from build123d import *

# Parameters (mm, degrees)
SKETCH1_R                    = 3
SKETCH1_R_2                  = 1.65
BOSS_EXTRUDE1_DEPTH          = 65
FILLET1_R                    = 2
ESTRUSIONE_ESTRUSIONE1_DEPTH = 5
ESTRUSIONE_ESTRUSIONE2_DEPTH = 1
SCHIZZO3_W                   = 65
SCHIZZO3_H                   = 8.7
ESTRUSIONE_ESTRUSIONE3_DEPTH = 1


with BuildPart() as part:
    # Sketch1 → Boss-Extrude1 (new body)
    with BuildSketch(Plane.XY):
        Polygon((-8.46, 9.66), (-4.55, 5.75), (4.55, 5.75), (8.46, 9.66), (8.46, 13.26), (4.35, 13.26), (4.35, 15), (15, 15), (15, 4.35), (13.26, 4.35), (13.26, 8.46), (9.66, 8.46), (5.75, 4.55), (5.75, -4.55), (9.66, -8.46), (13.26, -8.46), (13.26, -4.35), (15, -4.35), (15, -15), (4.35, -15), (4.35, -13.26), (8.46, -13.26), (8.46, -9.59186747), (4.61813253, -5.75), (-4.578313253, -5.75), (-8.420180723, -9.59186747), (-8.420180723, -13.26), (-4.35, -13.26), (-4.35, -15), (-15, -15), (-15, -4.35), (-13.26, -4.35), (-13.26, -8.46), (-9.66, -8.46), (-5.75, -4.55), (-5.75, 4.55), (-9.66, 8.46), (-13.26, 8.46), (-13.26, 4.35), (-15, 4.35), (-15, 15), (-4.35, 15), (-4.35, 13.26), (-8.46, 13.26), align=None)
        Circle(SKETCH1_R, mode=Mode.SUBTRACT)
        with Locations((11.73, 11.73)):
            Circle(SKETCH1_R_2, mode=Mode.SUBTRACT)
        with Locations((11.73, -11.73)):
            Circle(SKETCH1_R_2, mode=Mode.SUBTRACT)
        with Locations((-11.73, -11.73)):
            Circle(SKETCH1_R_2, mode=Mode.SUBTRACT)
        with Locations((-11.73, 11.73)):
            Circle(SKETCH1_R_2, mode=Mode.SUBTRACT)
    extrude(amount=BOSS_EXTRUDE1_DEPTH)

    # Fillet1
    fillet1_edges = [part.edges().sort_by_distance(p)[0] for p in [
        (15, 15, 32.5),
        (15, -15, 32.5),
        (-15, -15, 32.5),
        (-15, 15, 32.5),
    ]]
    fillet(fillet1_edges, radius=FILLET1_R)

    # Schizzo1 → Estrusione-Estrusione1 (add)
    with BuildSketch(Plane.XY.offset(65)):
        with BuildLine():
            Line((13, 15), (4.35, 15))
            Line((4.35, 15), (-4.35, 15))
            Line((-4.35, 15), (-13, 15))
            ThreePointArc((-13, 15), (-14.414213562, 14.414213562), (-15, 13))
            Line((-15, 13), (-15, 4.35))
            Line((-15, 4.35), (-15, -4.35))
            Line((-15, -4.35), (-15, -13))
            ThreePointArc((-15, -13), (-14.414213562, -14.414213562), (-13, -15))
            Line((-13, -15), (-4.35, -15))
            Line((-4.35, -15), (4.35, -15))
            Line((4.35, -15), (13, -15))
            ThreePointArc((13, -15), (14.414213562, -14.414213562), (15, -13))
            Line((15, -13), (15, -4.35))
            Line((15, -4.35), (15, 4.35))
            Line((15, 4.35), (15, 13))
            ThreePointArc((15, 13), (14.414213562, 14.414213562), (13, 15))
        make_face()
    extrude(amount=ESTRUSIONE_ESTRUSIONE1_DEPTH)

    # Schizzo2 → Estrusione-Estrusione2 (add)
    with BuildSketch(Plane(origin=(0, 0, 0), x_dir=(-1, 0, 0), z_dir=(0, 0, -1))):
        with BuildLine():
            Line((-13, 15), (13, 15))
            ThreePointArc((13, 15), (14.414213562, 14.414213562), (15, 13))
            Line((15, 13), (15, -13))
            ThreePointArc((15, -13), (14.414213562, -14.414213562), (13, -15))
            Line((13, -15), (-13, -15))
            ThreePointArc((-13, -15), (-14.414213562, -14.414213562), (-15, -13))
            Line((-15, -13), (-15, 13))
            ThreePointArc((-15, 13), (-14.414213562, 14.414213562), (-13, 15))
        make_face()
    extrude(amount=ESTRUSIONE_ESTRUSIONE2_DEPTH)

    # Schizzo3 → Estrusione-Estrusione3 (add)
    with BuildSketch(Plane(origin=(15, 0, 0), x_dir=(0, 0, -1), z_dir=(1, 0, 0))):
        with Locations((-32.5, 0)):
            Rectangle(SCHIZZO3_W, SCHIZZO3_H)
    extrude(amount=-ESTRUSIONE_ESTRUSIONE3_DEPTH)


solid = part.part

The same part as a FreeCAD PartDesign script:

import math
import FreeCAD as App
import Part
import Sketcher

V = App.Vector


def edges_at(feature, points):
    """Names of the edges that pass closest to the given points."""
    edges = feature.Shape.Edges
    near = lambda p: min(range(len(edges)), key=lambda i: edges[i].distToShape(Part.Vertex(*p))[0])
    return sorted({f"Edge{near(p) + 1}" for p in points})

doc = App.newDocument("Part")
body = doc.addObject("PartDesign::Body", "Body")

# Sketch on XY plane
sketch1 = body.newObject("Sketcher::SketchObject", "Sketch")
sketch1.AttachmentSupport = (doc.getObject("XY_Plane"), [""])
sketch1.MapMode = "FlatFace"
sketch1.addGeometry([
    Part.LineSegment(V(-4.5, 5.8, 0), V(-8.5, 9.7, 0)),  # 0
    Part.LineSegment(V(-8.5, 9.7, 0), V(-8.5, 13.3, 0)),  # 1
    Part.LineSegment(V(-8.5, 13.3, 0), V(-4.3, 13.3, 0)),  # 2
    Part.LineSegment(V(-4.3, 13.3, 0), V(-4.3, 15, 0)),  # 3
    Part.LineSegment(V(-4.3, 15, 0), V(-15, 15, 0)),  # 4
    Part.LineSegment(V(-15, 15, 0), V(-15, 4.3, 0)),  # 5
    Part.LineSegment(V(-15, 4.3, 0), V(-13.3, 4.3, 0)),  # 6
    Part.LineSegment(V(-13.3, 4.3, 0), V(-13.3, 8.5, 0)),  # 7
    Part.LineSegment(V(-13.3, 8.5, 0), V(-9.7, 8.5, 0)),  # 8
    Part.LineSegment(V(-9.7, 8.5, 0), V(-5.8, 4.5, 0)),  # 9
    Part.LineSegment(V(-5.8, 4.5, 0), V(-5.8, -4.5, 0)),  # 10
    Part.LineSegment(V(-5.8, -4.5, 0), V(-9.7, -8.5, 0)),  # 11
    Part.LineSegment(V(-9.7, -8.5, 0), V(-13.3, -8.5, 0)),  # 12
    Part.LineSegment(V(-13.3, -8.5, 0), V(-13.3, -4.3, 0)),  # 13
    Part.LineSegment(V(-13.3, -4.3, 0), V(-15, -4.3, 0)),  # 14
    Part.LineSegment(V(-15, -4.3, 0), V(-15, -15, 0)),  # 15
    Part.LineSegment(V(-15, -15, 0), V(-4.3, -15, 0)),  # 16
    Part.LineSegment(V(-4.3, -15, 0), V(-4.3, -13.3, 0)),  # 17
    Part.LineSegment(V(-4.3, -13.3, 0), V(-8.4, -13.3, 0)),  # 18
    Part.LineSegment(V(-8.4, -13.3, 0), V(-8.4, -9.6, 0)),  # 19
    Part.LineSegment(V(-8.4, -9.6, 0), V(-4.6, -5.8, 0)),  # 20
    Part.LineSegment(V(-4.6, -5.8, 0), V(4.6, -5.8, 0)),  # 21
    Part.LineSegment(V(4.6, -5.8, 0), V(8.5, -9.6, 0)),  # 22
    Part.LineSegment(V(8.5, -9.6, 0), V(8.5, -13.3, 0)),  # 23
    Part.LineSegment(V(8.5, -13.3, 0), V(4.3, -13.3, 0)),  # 24
    Part.LineSegment(V(4.3, -13.3, 0), V(4.3, -15, 0)),  # 25
    Part.LineSegment(V(4.3, -15, 0), V(15, -15, 0)),  # 26
    Part.LineSegment(V(15, -15, 0), V(15, -4.3, 0)),  # 27
    Part.LineSegment(V(15, -4.3, 0), V(13.3, -4.3, 0)),  # 28
    Part.LineSegment(V(13.3, -4.3, 0), V(13.3, -8.5, 0)),  # 29
    Part.LineSegment(V(13.3, -8.5, 0), V(9.7, -8.5, 0)),  # 30
    Part.LineSegment(V(9.7, -8.5, 0), V(5.8, -4.5, 0)),  # 31
    Part.LineSegment(V(5.8, -4.5, 0), V(5.8, 4.5, 0)),  # 32
    Part.LineSegment(V(5.8, 4.5, 0), V(9.7, 8.5, 0)),  # 33
    Part.LineSegment(V(9.7, 8.5, 0), V(13.3, 8.5, 0)),  # 34
    Part.LineSegment(V(13.3, 8.5, 0), V(13.3, 4.3, 0)),  # 35
    Part.LineSegment(V(13.3, 4.3, 0), V(15, 4.3, 0)),  # 36
    Part.LineSegment(V(15, 4.3, 0), V(15, 15, 0)),  # 37
    Part.LineSegment(V(15, 15, 0), V(4.3, 15, 0)),  # 38
    Part.LineSegment(V(4.3, 15, 0), V(4.3, 13.3, 0)),  # 39
    Part.LineSegment(V(4.3, 13.3, 0), V(8.5, 13.3, 0)),  # 40
    Part.LineSegment(V(8.5, 13.3, 0), V(8.5, 9.7, 0)),  # 41
    Part.LineSegment(V(8.5, 9.7, 0), V(4.5, 5.8, 0)),  # 42
    Part.LineSegment(V(4.5, 5.8, 0), V(-4.5, 5.8, 0)),  # 43
    Part.Circle(V(11.7, -11.7, 0), V(0, 0, 1), 1.6),  # 44
    Part.Circle(V(-11.7, -11.7, 0), V(0, 0, 1), 1.6),  # 45
    Part.Circle(V(0, 0, 0), V(0, 0, 1), 3),  # 46
    Part.Circle(V(11.7, 11.7, 0), V(0, 0, 1), 1.6),  # 47
    Part.Circle(V(-11.7, 11.7, 0), V(0, 0, 1), 1.6),  # 48
], False)
sketch1.addConstraint([
    Sketcher.Constraint("Coincident", 0, 2, 1, 1),
    Sketcher.Constraint("Coincident", 1, 2, 2, 1),
    Sketcher.Constraint("Coincident", 2, 2, 3, 1),
    Sketcher.Constraint("Coincident", 3, 2, 4, 1),
    Sketcher.Constraint("Coincident", 4, 2, 5, 1),
    Sketcher.Constraint("Coincident", 5, 2, 6, 1),
    Sketcher.Constraint("Coincident", 6, 2, 7, 1),
    Sketcher.Constraint("Coincident", 7, 2, 8, 1),
    Sketcher.Constraint("Coincident", 8, 2, 9, 1),
    Sketcher.Constraint("Coincident", 9, 2, 10, 1),
    Sketcher.Constraint("Coincident", 10, 2, 11, 1),
    Sketcher.Constraint("Coincident", 11, 2, 12, 1),
    Sketcher.Constraint("Coincident", 12, 2, 13, 1),
    Sketcher.Constraint("Coincident", 13, 2, 14, 1),
    Sketcher.Constraint("Coincident", 14, 2, 15, 1),
    Sketcher.Constraint("Coincident", 15, 2, 16, 1),
    Sketcher.Constraint("Coincident", 16, 2, 17, 1),
    Sketcher.Constraint("Coincident", 17, 2, 18, 1),
    Sketcher.Constraint("Coincident", 18, 2, 19, 1),
    Sketcher.Constraint("Coincident", 19, 2, 20, 1),
    Sketcher.Constraint("Coincident", 20, 2, 21, 1),
    Sketcher.Constraint("Coincident", 21, 2, 22, 1),
    Sketcher.Constraint("Coincident", 22, 2, 23, 1),
    Sketcher.Constraint("Coincident", 23, 2, 24, 1),
    Sketcher.Constraint("Coincident", 24, 2, 25, 1),
    Sketcher.Constraint("Coincident", 25, 2, 26, 1),
    Sketcher.Constraint("Coincident", 26, 2, 27, 1),
    Sketcher.Constraint("Coincident", 27, 2, 28, 1),
    Sketcher.Constraint("Coincident", 28, 2, 29, 1),
    Sketcher.Constraint("Coincident", 29, 2, 30, 1),
    Sketcher.Constraint("Coincident", 30, 2, 31, 1),
    Sketcher.Constraint("Coincident", 31, 2, 32, 1),
    Sketcher.Constraint("Coincident", 32, 2, 33, 1),
    Sketcher.Constraint("Coincident", 33, 2, 34, 1),
    Sketcher.Constraint("Coincident", 34, 2, 35, 1),
    Sketcher.Constraint("Coincident", 35, 2, 36, 1),
    Sketcher.Constraint("Coincident", 36, 2, 37, 1),
    Sketcher.Constraint("Coincident", 37, 2, 38, 1),
    Sketcher.Constraint("Coincident", 38, 2, 39, 1),
    Sketcher.Constraint("Coincident", 39, 2, 40, 1),
    Sketcher.Constraint("Coincident", 40, 2, 41, 1),
    Sketcher.Constraint("Coincident", 41, 2, 42, 1),
    Sketcher.Constraint("Coincident", 42, 2, 43, 1),
    Sketcher.Constraint("Coincident", 43, 2, 0, 1),
    Sketcher.Constraint("Vertical", 1),
    Sketcher.Constraint("Horizontal", 2),
    Sketcher.Constraint("Vertical", 3),
    Sketcher.Constraint("Horizontal", 4),
    Sketcher.Constraint("Vertical", 5),
    Sketcher.Constraint("Horizontal", 6),
    Sketcher.Constraint("Vertical", 7),
    Sketcher.Constraint("Horizontal", 8),
    Sketcher.Constraint("Vertical", 10),
    Sketcher.Constraint("Horizontal", 12),
    Sketcher.Constraint("Vertical", 13),
    Sketcher.Constraint("Horizontal", 14),
    Sketcher.Constraint("Vertical", 15),
    Sketcher.Constraint("Horizontal", 16),
    Sketcher.Constraint("Vertical", 17),
    Sketcher.Constraint("Horizontal", 18),
    Sketcher.Constraint("Vertical", 19),
    Sketcher.Constraint("Horizontal", 21),
    Sketcher.Constraint("Vertical", 23),
    Sketcher.Constraint("Horizontal", 24),
    Sketcher.Constraint("Vertical", 25),
    Sketcher.Constraint("Horizontal", 26),
    Sketcher.Constraint("Vertical", 27),
    Sketcher.Constraint("Horizontal", 28),
    Sketcher.Constraint("Vertical", 29),
    Sketcher.Constraint("Horizontal", 30),
    Sketcher.Constraint("Vertical", 32),
    Sketcher.Constraint("Horizontal", 34),
    Sketcher.Constraint("Vertical", 35),
    Sketcher.Constraint("Horizontal", 36),
    Sketcher.Constraint("Vertical", 37),
    Sketcher.Constraint("Horizontal", 38),
    Sketcher.Constraint("Vertical", 39),
    Sketcher.Constraint("Horizontal", 40),
    Sketcher.Constraint("Vertical", 41),
    Sketcher.Constraint("Horizontal", 43),
    Sketcher.Constraint("Coincident", 46, 3, -1, 1),
    Sketcher.Constraint("Equal", 44, 45),
    Sketcher.Constraint("Equal", 45, 47),
    Sketcher.Constraint("Equal", 47, 48),
    Sketcher.Constraint("Symmetric", 45, 3, 47, 3, -1, 1),
    Sketcher.Constraint("Symmetric", 44, 3, 48, 3, -1, 1),
    Sketcher.Constraint("Symmetric", 1, 2, 23, 2, -1, 1),
    Sketcher.Constraint("Symmetric", 3, 2, 25, 2, -1, 1),
    Sketcher.Constraint("Symmetric", 5, 2, 27, 2, -1, 1),
    Sketcher.Constraint("Symmetric", 7, 2, 29, 2, -1, 1),
    Sketcher.Constraint("Symmetric", 9, 2, 31, 2, -1, 1),
    Sketcher.Constraint("Symmetric", 11, 2, 33, 2, -1, 1),
    Sketcher.Constraint("Symmetric", 13, 2, 35, 2, -1, 1),
    Sketcher.Constraint("Symmetric", 15, 2, 37, 2, -1, 1),
    Sketcher.Constraint("Symmetric", 17, 2, 39, 2, -1, 1),
    Sketcher.Constraint("Symmetric", 44, 3, 45, 3, -2),
    Sketcher.Constraint("Symmetric", 17, 2, 24, 2, -2),
    Sketcher.Constraint("Symmetric", 15, 2, 26, 2, -2),
    Sketcher.Constraint("Symmetric", 13, 2, 28, 2, -2),
    Sketcher.Constraint("Symmetric", 11, 2, 30, 2, -2),
    Sketcher.Constraint("Symmetric", 0, 2, 41, 2, -2),
    Sketcher.Constraint("Parallel", 0, 9),
    Sketcher.Constraint("Perpendicular", 9, 11),
    Sketcher.Constraint("Parallel", 11, 20),
    Sketcher.Constraint("Perpendicular", 20, 22),
    Sketcher.Constraint("Parallel", 22, 31),
    Sketcher.Constraint("Perpendicular", 31, 33),
    Sketcher.Constraint("Parallel", 33, 42),
    Sketcher.Constraint("Horizontal", 19, 2, 22, 2),
    Sketcher.Constraint("Horizontal", 10, 2, 31, 2),
    Sketcher.Constraint("Equal", 34, 1),
    Sketcher.Constraint("Equal", 36, 3),
    Sketcher.Constraint("Equal", 38, 5),
    Sketcher.Constraint("Equal", 40, 7),
    Sketcher.Constraint("Equal", 43, 10),
    Sketcher.Constraint("Equal", 0, 9),
    Sketcher.Constraint("Diameter", 46, 6.0),
    Sketcher.Constraint("Diameter", 44, 3.3),
    Sketcher.Constraint("DistanceX", 8, 1, 8, 2, 3.6),
    Sketcher.Constraint("DistanceX", 43, 2, 43, 1, 9.1),
    Sketcher.Constraint("DistanceY", -1, 1, 3, 2, 15.0),
    Sketcher.Constraint("DistanceX", 2, 1, 2, 2, 4.11),
    Sketcher.Constraint("DistanceX", 4, 2, 4, 1, 10.65),
    Sketcher.Constraint("DistanceX", 6, 1, 6, 2, 1.74),
    Sketcher.Constraint("DistanceY", 20, 2, 10, 2, 1.2),
    Sketcher.Constraint("DistanceX", -1, 1, 44, 3, 11.73),
    Sketcher.Constraint("DistanceY", 44, 3, -1, 1, 11.73),
    Sketcher.Constraint("DistanceX", 18, 2, 18, 1, 4.070181),
    Sketcher.Constraint("Distance", 20, 5.433221),
])
pad1 = body.newObject("PartDesign::Pad", "Pad")
pad1.Profile = sketch1
pad1.Length = 65
doc.recompute()

fillet = body.newObject("PartDesign::Fillet", "Fillet")
fillet.Base = (pad1, edges_at(pad1, [
    (15, 15, 32.5),
    (15, -15, 32.5),
    (-15, -15, 32.5),
    (-15, 15, 32.5),
]))
fillet.Radius = 2

# Sketch on XY plane
sketch2 = body.newObject("Sketcher::SketchObject", "Sketch001")
sketch2.AttachmentSupport = (doc.getObject("XY_Plane"), [""])
sketch2.MapMode = "FlatFace"
sketch2.AttachmentOffset = App.Placement(V(0, 0, 65), App.Rotation())
sketch2.addGeometry([
    Part.LineSegment(V(13, 15, 0), V(-13, 15, 0)),  # 0
    Part.ArcOfCircle(Part.Circle(V(-13, 13, 0), V(0, 0, 1), 2), math.radians(90), math.radians(180)),  # 1
    Part.LineSegment(V(-15, 13, 0), V(-15, -13, 0)),  # 2
    Part.ArcOfCircle(Part.Circle(V(-13, -13, 0), V(0, 0, 1), 2), math.radians(-180), math.radians(-90)),  # 3
    Part.LineSegment(V(-13, -15, 0), V(13, -15, 0)),  # 4
    Part.ArcOfCircle(Part.Circle(V(13, -13, 0), V(0, 0, 1), 2), math.radians(-90), math.radians(0)),  # 5
    Part.LineSegment(V(15, -13, 0), V(15, 13, 0)),  # 6
    Part.ArcOfCircle(Part.Circle(V(13, 13, 0), V(0, 0, 1), 2), math.radians(0), math.radians(90)),  # 7
], False)
sketch2.addConstraint([
    Sketcher.Constraint("Tangent", 0, 2, 1, 1),
    Sketcher.Constraint("Tangent", 1, 2, 2, 1),
    Sketcher.Constraint("Tangent", 2, 2, 3, 1),
    Sketcher.Constraint("Tangent", 3, 2, 4, 1),
    Sketcher.Constraint("Tangent", 4, 2, 5, 1),
    Sketcher.Constraint("Tangent", 5, 2, 6, 1),
    Sketcher.Constraint("Tangent", 6, 2, 7, 1),
    Sketcher.Constraint("Tangent", 7, 2, 0, 1),
    Sketcher.Constraint("Horizontal", 0),
    Sketcher.Constraint("Vertical", 2),
    Sketcher.Constraint("Horizontal", 4),
    Sketcher.Constraint("Vertical", 6),
    Sketcher.Constraint("Equal", 1, 3),
    Sketcher.Constraint("Equal", 3, 5),
    Sketcher.Constraint("Equal", 5, 7),
    Sketcher.Constraint("Symmetric", 1, 3, 5, 3, -1, 1),
    Sketcher.Constraint("Equal", 4, 2),
    Sketcher.Constraint("Radius", 1, 2.0),
    Sketcher.Constraint("DistanceX", 0, 2, 0, 1, 26.0),
])
pad2 = body.newObject("PartDesign::Pad", "Pad001")
pad2.Profile = sketch2
pad2.Length = 5

# Sketch on XY plane
sketch3 = body.newObject("Sketcher::SketchObject", "Sketch002")
sketch3.AttachmentSupport = (doc.getObject("XY_Plane"), [""])
sketch3.MapMode = "FlatFace"
sketch3.addGeometry([
    Part.LineSegment(V(-13, 15, 0), V(13, 15, 0)),  # 0
    Part.ArcOfCircle(Part.Circle(V(13, 13, 0), V(0, 0, 1), 2), math.radians(0), math.radians(90)),  # 1
    Part.LineSegment(V(15, 13, 0), V(15, -13, 0)),  # 2
    Part.ArcOfCircle(Part.Circle(V(13, -13, 0), V(0, 0, 1), 2), math.radians(-90), math.radians(0)),  # 3
    Part.LineSegment(V(13, -15, 0), V(-13, -15, 0)),  # 4
    Part.ArcOfCircle(Part.Circle(V(-13, -13, 0), V(0, 0, 1), 2), math.radians(-180), math.radians(-90)),  # 5
    Part.LineSegment(V(-15, -13, 0), V(-15, 13, 0)),  # 6
    Part.ArcOfCircle(Part.Circle(V(-13, 13, 0), V(0, 0, 1), 2), math.radians(90), math.radians(180)),  # 7
], False)
sketch3.addConstraint([
    Sketcher.Constraint("Tangent", 0, 2, 1, 2),
    Sketcher.Constraint("Tangent", 1, 1, 2, 1),
    Sketcher.Constraint("Tangent", 2, 2, 3, 2),
    Sketcher.Constraint("Tangent", 3, 1, 4, 1),
    Sketcher.Constraint("Tangent", 4, 2, 5, 2),
    Sketcher.Constraint("Tangent", 5, 1, 6, 1),
    Sketcher.Constraint("Tangent", 6, 2, 7, 2),
    Sketcher.Constraint("Tangent", 7, 1, 0, 1),
    Sketcher.Constraint("Horizontal", 0),
    Sketcher.Constraint("Vertical", 2),
    Sketcher.Constraint("Horizontal", 4),
    Sketcher.Constraint("Vertical", 6),
    Sketcher.Constraint("Equal", 1, 3),
    Sketcher.Constraint("Equal", 3, 5),
    Sketcher.Constraint("Equal", 5, 7),
    Sketcher.Constraint("Symmetric", 1, 3, 5, 3, -1, 1),
    Sketcher.Constraint("Equal", 4, 2),
    Sketcher.Constraint("Radius", 1, 2.0),
    Sketcher.Constraint("DistanceX", 0, 1, 0, 2, 26.0),
])
pad3 = body.newObject("PartDesign::Pad", "Pad002")
pad3.Profile = sketch3
pad3.Length = 1
pad3.Reversed = True

# Sketch on YZ plane
sketch4 = body.newObject("Sketcher::SketchObject", "Sketch003")
sketch4.AttachmentSupport = (doc.getObject("YZ_Plane"), [""])
sketch4.MapMode = "FlatFace"
sketch4.AttachmentOffset = App.Placement(V(0, 0, 15), App.Rotation())
sketch4.addGeometry([
    Part.LineSegment(V(4, 65, 0), V(-4, 65, 0)),
    Part.LineSegment(V(-4, 65, 0), V(-4, 0, 0)),
    Part.LineSegment(V(-4, 0, 0), V(4, 0, 0)),
    Part.LineSegment(V(4, 0, 0), V(4, 65, 0)),
], False)
sketch4.addConstraint([
    Sketcher.Constraint("Coincident", 0, 2, 1, 1),
    Sketcher.Constraint("Coincident", 1, 2, 2, 1),
    Sketcher.Constraint("Coincident", 2, 2, 3, 1),
    Sketcher.Constraint("Coincident", 3, 2, 0, 1),
    Sketcher.Constraint("Horizontal", 0),
    Sketcher.Constraint("Vertical", 1),
    Sketcher.Constraint("Horizontal", 2),
    Sketcher.Constraint("Vertical", 3),
    Sketcher.Constraint("Symmetric", 1, 2, 2, 2, -1, 1),
    Sketcher.Constraint("DistanceY", 1, 2, 1, 1, 65.0),
    Sketcher.Constraint("DistanceX", 0, 2, 0, 1, 8.7),
])
pad4 = body.newObject("PartDesign::Pad", "Pad003")
pad4.Profile = sketch4
pad4.Length = 1
pad4.Reversed = True

doc.recompute()
